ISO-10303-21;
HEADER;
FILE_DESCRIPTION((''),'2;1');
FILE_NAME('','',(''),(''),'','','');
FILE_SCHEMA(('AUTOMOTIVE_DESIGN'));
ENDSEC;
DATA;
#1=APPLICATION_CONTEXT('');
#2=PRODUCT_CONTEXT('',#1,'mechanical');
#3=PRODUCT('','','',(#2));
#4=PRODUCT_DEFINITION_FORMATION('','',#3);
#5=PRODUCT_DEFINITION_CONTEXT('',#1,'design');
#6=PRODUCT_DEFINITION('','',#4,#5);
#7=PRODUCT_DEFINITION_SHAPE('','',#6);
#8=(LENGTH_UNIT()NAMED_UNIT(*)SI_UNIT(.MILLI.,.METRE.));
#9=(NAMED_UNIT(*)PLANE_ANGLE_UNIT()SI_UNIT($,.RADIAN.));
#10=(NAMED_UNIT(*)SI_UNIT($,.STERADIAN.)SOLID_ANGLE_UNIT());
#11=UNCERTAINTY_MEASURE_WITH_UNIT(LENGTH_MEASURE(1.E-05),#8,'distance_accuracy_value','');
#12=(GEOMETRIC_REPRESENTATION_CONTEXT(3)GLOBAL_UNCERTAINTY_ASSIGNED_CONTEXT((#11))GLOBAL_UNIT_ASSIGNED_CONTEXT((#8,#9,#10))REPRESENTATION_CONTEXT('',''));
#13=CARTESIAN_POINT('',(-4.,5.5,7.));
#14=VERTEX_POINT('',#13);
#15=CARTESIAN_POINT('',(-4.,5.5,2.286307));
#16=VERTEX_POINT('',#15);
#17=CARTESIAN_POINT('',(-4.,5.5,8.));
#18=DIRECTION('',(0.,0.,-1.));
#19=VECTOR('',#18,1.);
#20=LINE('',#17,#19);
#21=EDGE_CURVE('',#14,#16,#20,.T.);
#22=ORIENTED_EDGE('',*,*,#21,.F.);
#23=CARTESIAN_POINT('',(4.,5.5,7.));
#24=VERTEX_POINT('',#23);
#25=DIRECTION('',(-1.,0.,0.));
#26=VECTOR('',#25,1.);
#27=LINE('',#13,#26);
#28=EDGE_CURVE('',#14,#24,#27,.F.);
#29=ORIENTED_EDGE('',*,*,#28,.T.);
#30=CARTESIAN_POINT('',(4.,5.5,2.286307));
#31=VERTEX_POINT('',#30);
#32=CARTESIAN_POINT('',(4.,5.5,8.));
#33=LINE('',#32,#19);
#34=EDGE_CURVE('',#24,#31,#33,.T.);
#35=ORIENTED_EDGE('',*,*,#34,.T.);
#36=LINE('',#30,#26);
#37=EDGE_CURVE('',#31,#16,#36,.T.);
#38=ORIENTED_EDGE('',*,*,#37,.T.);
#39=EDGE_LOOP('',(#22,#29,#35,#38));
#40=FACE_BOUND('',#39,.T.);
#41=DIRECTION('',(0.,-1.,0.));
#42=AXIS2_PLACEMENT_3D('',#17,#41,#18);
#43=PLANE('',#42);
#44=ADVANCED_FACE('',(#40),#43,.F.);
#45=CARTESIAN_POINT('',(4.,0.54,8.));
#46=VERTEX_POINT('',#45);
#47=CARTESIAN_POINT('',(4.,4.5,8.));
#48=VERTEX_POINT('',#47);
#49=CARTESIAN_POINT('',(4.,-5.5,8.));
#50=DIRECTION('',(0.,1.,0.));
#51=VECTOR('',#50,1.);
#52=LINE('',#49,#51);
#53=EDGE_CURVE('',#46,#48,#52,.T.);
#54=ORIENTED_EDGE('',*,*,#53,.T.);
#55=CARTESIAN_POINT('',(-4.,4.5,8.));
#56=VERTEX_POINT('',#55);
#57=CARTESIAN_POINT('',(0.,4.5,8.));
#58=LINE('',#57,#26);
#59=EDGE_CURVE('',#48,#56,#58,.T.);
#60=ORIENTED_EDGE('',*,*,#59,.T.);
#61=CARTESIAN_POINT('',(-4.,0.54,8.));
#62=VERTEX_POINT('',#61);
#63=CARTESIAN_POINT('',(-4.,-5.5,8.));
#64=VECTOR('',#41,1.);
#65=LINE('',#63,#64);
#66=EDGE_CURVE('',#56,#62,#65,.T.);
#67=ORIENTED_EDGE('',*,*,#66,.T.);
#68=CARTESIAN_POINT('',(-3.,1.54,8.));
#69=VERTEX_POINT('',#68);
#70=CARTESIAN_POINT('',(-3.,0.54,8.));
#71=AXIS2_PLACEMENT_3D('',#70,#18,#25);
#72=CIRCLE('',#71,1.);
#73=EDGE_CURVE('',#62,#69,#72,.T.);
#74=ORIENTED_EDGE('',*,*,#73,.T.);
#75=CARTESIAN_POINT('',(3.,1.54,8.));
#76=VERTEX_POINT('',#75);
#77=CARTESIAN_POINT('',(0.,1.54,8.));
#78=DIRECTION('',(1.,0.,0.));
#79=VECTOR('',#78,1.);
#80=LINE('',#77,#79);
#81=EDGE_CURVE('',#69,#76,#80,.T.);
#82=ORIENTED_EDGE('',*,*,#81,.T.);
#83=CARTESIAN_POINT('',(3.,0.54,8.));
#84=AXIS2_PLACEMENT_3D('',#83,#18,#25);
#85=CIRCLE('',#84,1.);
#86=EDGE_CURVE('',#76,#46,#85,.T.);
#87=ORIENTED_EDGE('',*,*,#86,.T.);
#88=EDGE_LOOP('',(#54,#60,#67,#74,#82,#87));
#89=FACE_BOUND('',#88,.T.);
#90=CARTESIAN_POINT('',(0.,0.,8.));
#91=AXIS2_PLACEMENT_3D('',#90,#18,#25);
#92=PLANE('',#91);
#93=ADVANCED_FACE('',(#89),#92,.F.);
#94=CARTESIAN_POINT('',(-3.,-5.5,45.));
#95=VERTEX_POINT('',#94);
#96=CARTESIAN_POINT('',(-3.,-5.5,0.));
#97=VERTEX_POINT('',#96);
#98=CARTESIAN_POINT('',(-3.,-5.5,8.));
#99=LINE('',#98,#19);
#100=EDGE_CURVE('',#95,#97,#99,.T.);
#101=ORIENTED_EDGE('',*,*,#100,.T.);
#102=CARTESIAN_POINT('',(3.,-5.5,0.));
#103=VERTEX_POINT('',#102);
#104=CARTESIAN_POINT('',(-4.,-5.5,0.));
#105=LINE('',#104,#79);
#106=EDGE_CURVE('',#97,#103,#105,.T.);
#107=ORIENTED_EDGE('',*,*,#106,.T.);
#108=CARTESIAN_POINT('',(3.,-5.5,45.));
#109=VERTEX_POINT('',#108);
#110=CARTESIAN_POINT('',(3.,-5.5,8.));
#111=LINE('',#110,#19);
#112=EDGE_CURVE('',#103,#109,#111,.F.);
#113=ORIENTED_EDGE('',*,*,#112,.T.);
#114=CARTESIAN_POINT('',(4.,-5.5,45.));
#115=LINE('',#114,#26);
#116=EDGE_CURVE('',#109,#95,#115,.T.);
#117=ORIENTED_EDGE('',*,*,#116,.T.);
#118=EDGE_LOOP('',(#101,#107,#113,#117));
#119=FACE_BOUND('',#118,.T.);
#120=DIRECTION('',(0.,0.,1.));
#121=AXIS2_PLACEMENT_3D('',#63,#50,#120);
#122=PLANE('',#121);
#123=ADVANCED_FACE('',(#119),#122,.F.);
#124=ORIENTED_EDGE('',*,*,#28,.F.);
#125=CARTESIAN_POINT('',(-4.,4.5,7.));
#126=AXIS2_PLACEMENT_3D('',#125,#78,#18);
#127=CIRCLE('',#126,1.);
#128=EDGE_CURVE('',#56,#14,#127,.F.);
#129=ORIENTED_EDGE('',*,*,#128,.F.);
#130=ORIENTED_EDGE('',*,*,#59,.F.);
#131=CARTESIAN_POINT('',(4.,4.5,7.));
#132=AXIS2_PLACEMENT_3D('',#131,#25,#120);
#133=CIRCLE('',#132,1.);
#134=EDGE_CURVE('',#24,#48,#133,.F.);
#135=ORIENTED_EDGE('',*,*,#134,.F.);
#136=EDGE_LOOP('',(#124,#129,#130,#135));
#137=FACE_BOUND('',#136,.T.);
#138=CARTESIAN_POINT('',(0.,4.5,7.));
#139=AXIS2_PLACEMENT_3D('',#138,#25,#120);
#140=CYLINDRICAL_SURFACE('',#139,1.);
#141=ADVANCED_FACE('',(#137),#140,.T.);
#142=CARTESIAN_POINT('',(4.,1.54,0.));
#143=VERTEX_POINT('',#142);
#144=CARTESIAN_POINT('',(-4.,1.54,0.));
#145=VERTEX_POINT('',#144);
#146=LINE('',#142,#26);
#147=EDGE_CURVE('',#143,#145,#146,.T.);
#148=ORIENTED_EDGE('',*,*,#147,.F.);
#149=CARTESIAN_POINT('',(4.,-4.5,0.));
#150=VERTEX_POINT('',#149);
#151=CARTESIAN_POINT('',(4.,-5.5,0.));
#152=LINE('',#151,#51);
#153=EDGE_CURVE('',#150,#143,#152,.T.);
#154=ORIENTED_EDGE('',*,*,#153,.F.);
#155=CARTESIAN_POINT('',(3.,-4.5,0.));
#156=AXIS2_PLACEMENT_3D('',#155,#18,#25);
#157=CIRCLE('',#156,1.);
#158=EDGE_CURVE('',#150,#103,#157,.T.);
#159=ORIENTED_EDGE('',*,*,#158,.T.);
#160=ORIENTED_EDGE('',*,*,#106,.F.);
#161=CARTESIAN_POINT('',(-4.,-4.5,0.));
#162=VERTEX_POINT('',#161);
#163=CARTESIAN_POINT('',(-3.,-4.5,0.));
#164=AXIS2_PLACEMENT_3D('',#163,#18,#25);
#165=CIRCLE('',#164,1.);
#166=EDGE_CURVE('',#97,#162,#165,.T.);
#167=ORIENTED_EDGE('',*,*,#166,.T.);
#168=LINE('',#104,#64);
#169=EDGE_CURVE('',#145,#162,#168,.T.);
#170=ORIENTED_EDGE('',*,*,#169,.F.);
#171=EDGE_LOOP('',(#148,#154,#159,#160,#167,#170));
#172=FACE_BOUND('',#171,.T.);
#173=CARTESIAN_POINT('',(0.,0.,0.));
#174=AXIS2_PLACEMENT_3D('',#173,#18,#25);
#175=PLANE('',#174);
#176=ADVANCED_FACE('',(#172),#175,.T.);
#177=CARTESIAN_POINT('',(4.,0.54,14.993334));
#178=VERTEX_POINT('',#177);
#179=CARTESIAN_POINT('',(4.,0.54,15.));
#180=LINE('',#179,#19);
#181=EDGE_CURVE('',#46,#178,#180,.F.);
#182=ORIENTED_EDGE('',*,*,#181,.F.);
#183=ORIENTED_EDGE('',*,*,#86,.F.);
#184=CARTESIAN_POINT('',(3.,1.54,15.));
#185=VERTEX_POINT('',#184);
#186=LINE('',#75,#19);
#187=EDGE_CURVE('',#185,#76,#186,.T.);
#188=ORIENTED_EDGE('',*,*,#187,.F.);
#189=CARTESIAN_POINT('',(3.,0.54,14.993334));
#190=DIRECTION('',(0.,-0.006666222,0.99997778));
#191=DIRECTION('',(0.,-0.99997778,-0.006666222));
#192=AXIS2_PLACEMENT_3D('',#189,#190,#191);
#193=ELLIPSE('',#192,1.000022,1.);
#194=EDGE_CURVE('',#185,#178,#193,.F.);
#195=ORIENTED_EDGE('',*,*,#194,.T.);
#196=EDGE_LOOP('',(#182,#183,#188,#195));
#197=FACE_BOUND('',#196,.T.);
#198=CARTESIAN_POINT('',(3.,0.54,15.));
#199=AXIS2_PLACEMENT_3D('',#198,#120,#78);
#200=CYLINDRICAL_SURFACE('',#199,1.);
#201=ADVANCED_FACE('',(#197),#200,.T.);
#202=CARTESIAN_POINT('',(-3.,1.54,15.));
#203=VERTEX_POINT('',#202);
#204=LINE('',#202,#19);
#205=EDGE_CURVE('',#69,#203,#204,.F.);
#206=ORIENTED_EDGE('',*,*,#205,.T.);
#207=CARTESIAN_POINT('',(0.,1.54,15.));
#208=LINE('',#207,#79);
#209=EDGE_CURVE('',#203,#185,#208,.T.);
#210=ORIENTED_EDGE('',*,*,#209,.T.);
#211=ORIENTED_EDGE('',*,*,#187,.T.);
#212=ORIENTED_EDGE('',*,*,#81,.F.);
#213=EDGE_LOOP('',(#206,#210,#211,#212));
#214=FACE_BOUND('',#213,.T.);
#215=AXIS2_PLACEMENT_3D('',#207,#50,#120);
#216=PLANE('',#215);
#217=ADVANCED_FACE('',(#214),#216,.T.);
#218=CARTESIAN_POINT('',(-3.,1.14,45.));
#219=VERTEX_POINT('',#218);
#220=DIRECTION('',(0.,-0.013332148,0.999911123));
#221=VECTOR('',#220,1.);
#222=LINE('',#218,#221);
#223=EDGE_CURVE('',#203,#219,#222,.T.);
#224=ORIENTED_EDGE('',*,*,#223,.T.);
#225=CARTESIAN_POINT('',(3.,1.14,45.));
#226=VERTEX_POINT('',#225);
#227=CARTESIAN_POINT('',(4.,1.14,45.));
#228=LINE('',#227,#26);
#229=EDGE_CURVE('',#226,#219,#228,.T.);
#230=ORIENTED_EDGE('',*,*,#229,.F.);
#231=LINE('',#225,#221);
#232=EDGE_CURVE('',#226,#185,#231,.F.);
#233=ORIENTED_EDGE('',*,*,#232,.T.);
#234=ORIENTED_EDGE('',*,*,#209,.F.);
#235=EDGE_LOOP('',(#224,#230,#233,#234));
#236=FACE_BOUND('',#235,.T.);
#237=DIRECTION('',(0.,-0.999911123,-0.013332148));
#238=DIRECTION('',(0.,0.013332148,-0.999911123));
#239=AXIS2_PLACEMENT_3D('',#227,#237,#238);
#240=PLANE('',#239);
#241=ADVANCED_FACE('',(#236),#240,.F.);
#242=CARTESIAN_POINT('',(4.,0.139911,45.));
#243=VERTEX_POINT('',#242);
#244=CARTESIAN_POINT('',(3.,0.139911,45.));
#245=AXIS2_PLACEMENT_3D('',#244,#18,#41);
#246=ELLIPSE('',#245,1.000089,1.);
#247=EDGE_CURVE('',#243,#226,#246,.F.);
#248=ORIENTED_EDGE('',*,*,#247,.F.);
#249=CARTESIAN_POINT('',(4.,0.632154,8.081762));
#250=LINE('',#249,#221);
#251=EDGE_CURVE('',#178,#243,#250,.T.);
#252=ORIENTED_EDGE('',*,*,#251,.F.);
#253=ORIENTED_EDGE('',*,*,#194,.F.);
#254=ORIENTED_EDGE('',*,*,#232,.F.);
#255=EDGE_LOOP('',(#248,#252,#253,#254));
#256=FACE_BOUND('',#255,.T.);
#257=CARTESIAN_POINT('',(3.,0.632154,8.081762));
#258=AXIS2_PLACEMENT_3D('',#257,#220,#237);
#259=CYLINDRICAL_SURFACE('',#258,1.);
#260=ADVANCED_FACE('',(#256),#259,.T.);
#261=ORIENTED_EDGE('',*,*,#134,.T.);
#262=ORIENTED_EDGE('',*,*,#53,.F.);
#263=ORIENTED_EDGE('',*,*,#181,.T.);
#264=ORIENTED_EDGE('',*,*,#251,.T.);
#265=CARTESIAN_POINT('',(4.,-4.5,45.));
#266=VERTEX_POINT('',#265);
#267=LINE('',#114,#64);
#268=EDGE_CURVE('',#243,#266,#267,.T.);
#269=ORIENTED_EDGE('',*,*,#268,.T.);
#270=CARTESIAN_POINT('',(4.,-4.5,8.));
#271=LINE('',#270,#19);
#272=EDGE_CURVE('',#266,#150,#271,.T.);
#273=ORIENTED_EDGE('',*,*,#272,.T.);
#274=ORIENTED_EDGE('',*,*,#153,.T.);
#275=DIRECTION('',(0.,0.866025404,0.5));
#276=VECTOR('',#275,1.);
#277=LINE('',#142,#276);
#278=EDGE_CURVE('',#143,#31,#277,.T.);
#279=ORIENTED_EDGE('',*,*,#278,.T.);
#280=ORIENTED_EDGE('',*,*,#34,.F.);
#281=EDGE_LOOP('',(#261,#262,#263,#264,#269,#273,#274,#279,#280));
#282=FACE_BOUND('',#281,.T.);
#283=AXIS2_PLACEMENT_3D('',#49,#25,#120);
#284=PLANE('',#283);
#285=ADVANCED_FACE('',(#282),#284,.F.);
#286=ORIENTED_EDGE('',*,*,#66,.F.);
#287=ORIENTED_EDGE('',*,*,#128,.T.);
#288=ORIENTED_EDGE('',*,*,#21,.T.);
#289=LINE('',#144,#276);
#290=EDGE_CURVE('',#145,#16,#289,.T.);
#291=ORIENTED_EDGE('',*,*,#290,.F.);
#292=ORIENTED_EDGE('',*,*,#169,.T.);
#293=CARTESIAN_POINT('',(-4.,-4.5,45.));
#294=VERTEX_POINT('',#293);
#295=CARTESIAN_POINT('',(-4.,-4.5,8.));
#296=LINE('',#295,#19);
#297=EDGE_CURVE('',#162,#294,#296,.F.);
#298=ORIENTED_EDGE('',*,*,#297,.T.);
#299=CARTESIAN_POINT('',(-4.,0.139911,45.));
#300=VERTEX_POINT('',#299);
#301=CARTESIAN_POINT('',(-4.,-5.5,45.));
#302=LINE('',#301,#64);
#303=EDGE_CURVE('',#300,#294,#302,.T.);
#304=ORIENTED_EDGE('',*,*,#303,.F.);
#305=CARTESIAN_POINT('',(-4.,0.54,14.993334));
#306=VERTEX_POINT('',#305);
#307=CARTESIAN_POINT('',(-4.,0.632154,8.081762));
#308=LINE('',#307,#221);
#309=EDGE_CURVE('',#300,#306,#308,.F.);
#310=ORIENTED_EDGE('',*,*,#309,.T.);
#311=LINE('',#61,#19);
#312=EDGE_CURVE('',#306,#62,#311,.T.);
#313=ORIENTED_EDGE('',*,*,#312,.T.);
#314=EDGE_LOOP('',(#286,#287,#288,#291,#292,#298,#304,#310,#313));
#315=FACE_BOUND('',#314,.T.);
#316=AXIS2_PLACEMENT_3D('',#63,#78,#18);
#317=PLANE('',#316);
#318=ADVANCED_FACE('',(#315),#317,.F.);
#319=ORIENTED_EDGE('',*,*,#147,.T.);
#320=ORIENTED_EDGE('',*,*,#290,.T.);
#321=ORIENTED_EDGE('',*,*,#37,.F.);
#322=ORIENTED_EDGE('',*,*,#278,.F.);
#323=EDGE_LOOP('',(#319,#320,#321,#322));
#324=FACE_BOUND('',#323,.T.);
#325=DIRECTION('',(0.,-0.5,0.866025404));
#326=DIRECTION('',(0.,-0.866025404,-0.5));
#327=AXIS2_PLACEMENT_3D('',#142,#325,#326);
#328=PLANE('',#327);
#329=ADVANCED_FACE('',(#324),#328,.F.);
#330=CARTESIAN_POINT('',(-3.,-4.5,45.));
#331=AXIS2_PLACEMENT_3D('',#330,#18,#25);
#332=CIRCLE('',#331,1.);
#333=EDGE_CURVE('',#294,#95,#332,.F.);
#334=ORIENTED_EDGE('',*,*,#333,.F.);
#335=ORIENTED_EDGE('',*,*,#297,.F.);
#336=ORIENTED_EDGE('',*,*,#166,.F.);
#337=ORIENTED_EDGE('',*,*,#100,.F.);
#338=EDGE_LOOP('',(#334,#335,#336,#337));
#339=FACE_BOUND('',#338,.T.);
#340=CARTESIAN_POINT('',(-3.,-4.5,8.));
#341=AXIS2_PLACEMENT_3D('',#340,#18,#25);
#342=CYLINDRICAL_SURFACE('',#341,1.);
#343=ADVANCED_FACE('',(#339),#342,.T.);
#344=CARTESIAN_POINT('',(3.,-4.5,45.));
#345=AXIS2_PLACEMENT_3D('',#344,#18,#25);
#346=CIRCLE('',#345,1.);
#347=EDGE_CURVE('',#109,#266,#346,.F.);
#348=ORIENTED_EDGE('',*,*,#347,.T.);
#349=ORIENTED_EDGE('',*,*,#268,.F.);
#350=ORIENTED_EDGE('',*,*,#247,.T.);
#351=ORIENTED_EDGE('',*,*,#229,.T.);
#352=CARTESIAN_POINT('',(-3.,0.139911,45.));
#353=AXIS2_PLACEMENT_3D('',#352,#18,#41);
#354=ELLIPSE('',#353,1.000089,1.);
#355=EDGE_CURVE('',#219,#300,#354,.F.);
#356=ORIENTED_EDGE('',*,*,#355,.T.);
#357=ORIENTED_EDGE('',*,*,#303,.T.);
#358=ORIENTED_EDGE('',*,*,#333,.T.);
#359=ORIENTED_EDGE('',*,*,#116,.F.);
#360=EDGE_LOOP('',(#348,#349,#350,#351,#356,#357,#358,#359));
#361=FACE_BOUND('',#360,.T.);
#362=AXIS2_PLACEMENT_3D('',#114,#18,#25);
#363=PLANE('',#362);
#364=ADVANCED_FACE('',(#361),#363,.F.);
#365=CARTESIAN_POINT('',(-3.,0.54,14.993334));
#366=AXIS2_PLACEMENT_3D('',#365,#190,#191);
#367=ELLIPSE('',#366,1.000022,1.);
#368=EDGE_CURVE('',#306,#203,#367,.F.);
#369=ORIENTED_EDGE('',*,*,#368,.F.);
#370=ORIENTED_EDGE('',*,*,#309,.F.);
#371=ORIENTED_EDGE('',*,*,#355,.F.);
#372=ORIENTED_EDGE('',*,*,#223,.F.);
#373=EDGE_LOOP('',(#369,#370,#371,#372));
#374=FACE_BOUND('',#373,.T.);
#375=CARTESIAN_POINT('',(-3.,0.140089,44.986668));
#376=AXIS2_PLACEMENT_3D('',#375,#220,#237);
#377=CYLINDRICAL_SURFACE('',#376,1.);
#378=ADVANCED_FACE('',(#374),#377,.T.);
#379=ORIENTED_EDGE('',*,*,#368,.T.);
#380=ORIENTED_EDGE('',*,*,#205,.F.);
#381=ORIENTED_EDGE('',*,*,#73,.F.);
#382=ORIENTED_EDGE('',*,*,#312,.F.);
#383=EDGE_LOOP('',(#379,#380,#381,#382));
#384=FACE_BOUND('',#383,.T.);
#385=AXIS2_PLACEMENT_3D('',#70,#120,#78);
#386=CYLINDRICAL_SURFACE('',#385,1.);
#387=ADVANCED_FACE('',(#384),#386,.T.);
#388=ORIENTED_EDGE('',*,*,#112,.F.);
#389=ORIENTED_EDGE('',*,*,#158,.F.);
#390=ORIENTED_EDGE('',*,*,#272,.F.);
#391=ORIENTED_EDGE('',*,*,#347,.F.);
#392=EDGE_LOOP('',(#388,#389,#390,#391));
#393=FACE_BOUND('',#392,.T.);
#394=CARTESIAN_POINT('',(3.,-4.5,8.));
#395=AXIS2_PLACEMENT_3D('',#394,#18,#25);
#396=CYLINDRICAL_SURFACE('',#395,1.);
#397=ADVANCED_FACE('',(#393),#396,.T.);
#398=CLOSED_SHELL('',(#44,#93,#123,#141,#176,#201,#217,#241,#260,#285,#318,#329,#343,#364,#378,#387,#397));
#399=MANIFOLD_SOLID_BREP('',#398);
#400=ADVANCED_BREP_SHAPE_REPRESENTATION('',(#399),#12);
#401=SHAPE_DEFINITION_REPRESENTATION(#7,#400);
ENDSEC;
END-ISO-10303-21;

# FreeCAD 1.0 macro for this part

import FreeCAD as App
import Part
import Sketcher

V = App.Vector
Q = App.Units.Quantity


def edges_at(feature, points):
    """Names of the edges that pass closest to the given points."""
    edges = feature.Shape.Edges
    near = lambda p: min(range(len(edges)), key=lambda i: edges[i].distToShape(Part.Vertex(*p))[0])
    return sorted({f"Edge{near(p) + 1}" for p in points})

doc = App.newDocument("Part")
params = doc.addObject("Spreadsheet::Sheet", "Params")
for row, (alias, value) in enumerate([
    ("sketch1_width", "8 mm"),
    ("sketch1_height", "11 mm"),
    ("pad1_length", "8 mm"),
    ("sketch2_width", "8 mm"),
    ("sketch2_height", "7.04 mm"),
    ("pad2_length", "7 mm"),
    ("sketch3_height", "30 mm"),
    ("sketch3_width", "7.04 mm"),
    ("sketch3_width2", "6.64 mm"),
    ("pad3_length", "8 mm"),
    ("sketch4_length", "10 mm"),
    ("pocket1_length", "8 mm"),
    ("fillet_radius", "1 mm"),
], start=1):
    params.set(f"A{row}", alias)
    params.set(f"B{row}", "=" + value)
    params.setAlias(f"B{row}", alias)

body = doc.addObject("PartDesign::Body", "Body")

sketch1 = doc.addObject("Sketcher::SketchObject", "Sketch")
body.addObject(sketch1)
sketch1.AttachmentSupport = (doc.XY_Plane, [""])
sketch1.MapMode = "FlatFace"
sketch1.addGeometry([
    Part.LineSegment(V(-4, 6, 0), V(-4, -6, 0)),
    Part.LineSegment(V(-4, -6, 0), V(4, -6, 0)),
    Part.LineSegment(V(4, -6, 0), V(4, 6, 0)),
    Part.LineSegment(V(4, 6, 0), V(-4, 6, 0)),
], False)
sketch1.addConstraint([
    Sketcher.Constraint("Coincident", 0, 2, 1, 1),
    Sketcher.Constraint("Coincident", 1, 2, 2, 1),
    Sketcher.Constraint("Coincident", 2, 2, 3, 1),
    Sketcher.Constraint("Coincident", 3, 2, 0, 1),
    Sketcher.Constraint("Vertical", 0),
    Sketcher.Constraint("Horizontal", 1),
    Sketcher.Constraint("Vertical", 2),
    Sketcher.Constraint("Horizontal", 3),
    Sketcher.Constraint("Symmetric", 0, 2, 2, 2, -1, 1),
    Sketcher.Constraint("DistanceX", 1, 1, 1, 2, Q("8 mm")),
    Sketcher.Constraint("DistanceY", 0, 2, 0, 1, Q("11 mm")),
])
sketch1.setExpression("Constraints[9]", "Params.sketch1_width")
sketch1.setExpression("Constraints[10]", "Params.sketch1_height")
pad1 = doc.addObject("PartDesign::Pad", "Pad")
body.addObject(pad1)
pad1.Profile = sketch1
pad1.setExpression("Length", "Params.pad1_length")

sketch2 = doc.addObject("Sketcher::SketchObject", "Sketch001")
body.addObject(sketch2)
sketch2.AttachmentSupport = (doc.XY_Plane, [""])
sketch2.MapMode = "FlatFace"
sketch2.AttachmentOffset = App.Placement(V(0, 0, 8), App.Rotation())
sketch2.addGeometry([
    Part.LineSegment(V(-4, 2, 0), V(-4, -6, 0)),
    Part.LineSegment(V(-4, -6, 0), V(4, -6, 0)),
    Part.LineSegment(V(4, -6, 0), V(4, 2, 0)),
    Part.LineSegment(V(4, 2, 0), V(-4, 2, 0)),
], False)
sketch2.addConstraint([
    Sketcher.Constraint("Coincident", 0, 2, 1, 1),
    Sketcher.Constraint("Coincident", 1, 2, 2, 1),
    Sketcher.Constraint("Coincident", 2, 2, 3, 1),
    Sketcher.Constraint("Coincident", 3, 2, 0, 1),
    Sketcher.Constraint("Vertical", 0),
    Sketcher.Constraint("Horizontal", 1),
    Sketcher.Constraint("Vertical", 2),
    Sketcher.Constraint("Horizontal", 3),
    Sketcher.Constraint("DistanceX", 1, 1, 1, 2, Q("8 mm")),
    Sketcher.Constraint("DistanceX", 0, 2, -1, 1, Q("4 mm")),
    Sketcher.Constraint("DistanceY", 0, 2, 0, 1, Q("7.04 mm")),
    Sketcher.Constraint("DistanceY", 0, 2, -1, 1, Q("5.5 mm")),
])
sketch2.setExpression("Constraints[8]", "Params.sketch2_width")
sketch2.setExpression("Constraints[10]", "Params.sketch2_height")
pad2 = doc.addObject("PartDesign::Pad", "Pad001")
body.addObject(pad2)
pad2.Profile = sketch2
pad2.setExpression("Length", "Params.pad2_length")

sketch3 = doc.addObject("Sketcher::SketchObject", "Sketch002")
body.addObject(sketch3)
sketch3.AttachmentSupport = (doc.YZ_Plane, [""])
sketch3.MapMode = "FlatFace"
sketch3.addGeometry([
    Part.LineSegment(V(-6, 15, 0), V(2, 15, 0)),
    Part.LineSegment(V(2, 15, 0), V(1, 45, 0)),
    Part.LineSegment(V(1, 45, 0), V(-6, 45, 0)),
    Part.LineSegment(V(-6, 45, 0), V(-6, 15, 0)),
], False)
sketch3.addConstraint([
    Sketcher.Constraint("Coincident", 0, 2, 1, 1),
    Sketcher.Constraint("Coincident", 1, 2, 2, 1),
    Sketcher.Constraint("Coincident", 2, 2, 3, 1),
    Sketcher.Constraint("Coincident", 3, 2, 0, 1),
    Sketcher.Constraint("Horizontal", 0),
    Sketcher.Constraint("Horizontal", 2),
    Sketcher.Constraint("Vertical", 3),
    Sketcher.Constraint("DistanceY", 3, 2, 3, 1, Q("30 mm")),
    Sketcher.Constraint("DistanceY", -1, 1, 0, 2, Q("15 mm")),
    Sketcher.Constraint("DistanceX", 0, 1, 0, 2, Q("7.04 mm")),
    Sketcher.Constraint("DistanceX", 2, 2, 2, 1, Q("6.64 mm")),
    Sketcher.Constraint("DistanceX", 2, 2, -1, 1, Q("5.5 mm")),
])
sketch3.setExpression("Constraints[7]", "Params.sketch3_height")
sketch3.setExpression("Constraints[9]", "Params.sketch3_width")
sketch3.setExpression("Constraints[10]", "Params.sketch3_width2")
pad3 = doc.addObject("PartDesign::Pad", "Pad002")
body.addObject(pad3)
pad3.Profile = sketch3
pad3.setExpression("Length", "Params.pad3_length")
pad3.Midplane = True

sketch4 = doc.addObject("Sketcher::SketchObject", "Sketch003")
body.addObject(sketch4)
sketch4.AttachmentSupport = (doc.YZ_Plane, [""])
sketch4.MapMode = "FlatFace"
sketch4.addGeometry([
    Part.LineSegment(V(5.5, 2.3, 0), V(1.5, 0, 0)),
    Part.LineSegment(V(1.5, 0, 0), V(6.5, -8.7, 0)),
    Part.LineSegment(V(6.5, -8.7, 0), V(10.5, -6.4, 0)),
    Part.LineSegment(V(10.5, -6.4, 0), V(5.5, 2.3, 0)),
], False)
sketch4.addConstraint([
    Sketcher.Constraint("Coincident", 0, 2, 1, 1),
    Sketcher.Constraint("Coincident", 1, 2, 2, 1),
    Sketcher.Constraint("Coincident", 2, 2, 3, 1),
    Sketcher.Constraint("Coincident", 3, 2, 0, 1),
    Sketcher.Constraint("PointOnObject", 0, 2, -1),
    Sketcher.Constraint("Perpendicular", 0, 1),
    Sketcher.Constraint("Perpendicular", 1, 2),
    Sketcher.Constraint("Perpendicular", 2, 3),
    Sketcher.Constraint("Angle", 0, Q("-150 deg")),
    Sketcher.Constraint("Distance", 1, Q("10 mm")),
    Sketcher.Constraint("DistanceX", -1, 1, 2, 2, Q("10.5 mm")),
    Sketcher.Constraint("DistanceX", -1, 1, 0, 2, Q("1.54 mm")),
])
sketch4.setExpression("Constraints[9]", "Params.sketch4_length")
pocket1 = doc.addObject("PartDesign::Pocket", "Pocket")
body.addObject(pocket1)
pocket1.Profile = sketch4
pocket1.setExpression("Length", "Params.pocket1_length")
pocket1.Midplane = True
doc.recompute()

fillet = doc.addObject("PartDesign::Fillet", "Fillet")
body.addObject(fillet)
fillet.Base = (pocket1, edges_at(pocket1, [
    (4, 1.54, 11.5),
    (-4, 1.54, 11.5),
    (-4, 1.34, 30),
    (4, 1.34, 30),
    (4, -5.5, 22.5),
    (-4, -5.5, 22.5),
    (0, 5.5, 8),
]))
fillet.setExpression("Radius", "Params.fillet_radius")

doc.recompute()
